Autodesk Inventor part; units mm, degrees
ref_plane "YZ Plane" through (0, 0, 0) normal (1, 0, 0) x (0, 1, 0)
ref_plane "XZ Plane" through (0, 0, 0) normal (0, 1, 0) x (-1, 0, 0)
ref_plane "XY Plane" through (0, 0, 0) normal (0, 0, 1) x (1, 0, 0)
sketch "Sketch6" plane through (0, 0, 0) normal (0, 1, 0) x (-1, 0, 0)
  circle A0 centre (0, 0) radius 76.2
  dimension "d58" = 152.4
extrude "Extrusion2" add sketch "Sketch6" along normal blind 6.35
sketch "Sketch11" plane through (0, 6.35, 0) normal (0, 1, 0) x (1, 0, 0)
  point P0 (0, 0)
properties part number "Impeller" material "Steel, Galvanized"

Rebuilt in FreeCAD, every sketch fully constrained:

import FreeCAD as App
import Part
import Sketcher
from FreeCAD import Vector
Q = App.Units.Quantity

doc = App.newDocument("Part")
body = doc.addObject("PartDesign::Body", "Body")

# Sketch on XZ plane
sketch1 = body.newObject("Sketcher::SketchObject", "Sketch")
sketch1.AttachmentSupport = (doc.getObject("XZ_Plane"), [""])
sketch1.MapMode = "FlatFace"
sketch1.addGeometry(Part.Circle(Vector(0, 0, 0), Vector(0, 0, 1), 76.2), False)
sketch1.addConstraint(Sketcher.Constraint("Coincident", 0, 3, -1, 1))
sketch1.addConstraint(Sketcher.Constraint("Diameter", 0, Q("6 in")))
pad1 = body.newObject("PartDesign::Pad", "Pad")
pad1.Profile = sketch1
pad1.Length = Q("0.25 in")
pad1.Reversed = True

doc.recompute()
